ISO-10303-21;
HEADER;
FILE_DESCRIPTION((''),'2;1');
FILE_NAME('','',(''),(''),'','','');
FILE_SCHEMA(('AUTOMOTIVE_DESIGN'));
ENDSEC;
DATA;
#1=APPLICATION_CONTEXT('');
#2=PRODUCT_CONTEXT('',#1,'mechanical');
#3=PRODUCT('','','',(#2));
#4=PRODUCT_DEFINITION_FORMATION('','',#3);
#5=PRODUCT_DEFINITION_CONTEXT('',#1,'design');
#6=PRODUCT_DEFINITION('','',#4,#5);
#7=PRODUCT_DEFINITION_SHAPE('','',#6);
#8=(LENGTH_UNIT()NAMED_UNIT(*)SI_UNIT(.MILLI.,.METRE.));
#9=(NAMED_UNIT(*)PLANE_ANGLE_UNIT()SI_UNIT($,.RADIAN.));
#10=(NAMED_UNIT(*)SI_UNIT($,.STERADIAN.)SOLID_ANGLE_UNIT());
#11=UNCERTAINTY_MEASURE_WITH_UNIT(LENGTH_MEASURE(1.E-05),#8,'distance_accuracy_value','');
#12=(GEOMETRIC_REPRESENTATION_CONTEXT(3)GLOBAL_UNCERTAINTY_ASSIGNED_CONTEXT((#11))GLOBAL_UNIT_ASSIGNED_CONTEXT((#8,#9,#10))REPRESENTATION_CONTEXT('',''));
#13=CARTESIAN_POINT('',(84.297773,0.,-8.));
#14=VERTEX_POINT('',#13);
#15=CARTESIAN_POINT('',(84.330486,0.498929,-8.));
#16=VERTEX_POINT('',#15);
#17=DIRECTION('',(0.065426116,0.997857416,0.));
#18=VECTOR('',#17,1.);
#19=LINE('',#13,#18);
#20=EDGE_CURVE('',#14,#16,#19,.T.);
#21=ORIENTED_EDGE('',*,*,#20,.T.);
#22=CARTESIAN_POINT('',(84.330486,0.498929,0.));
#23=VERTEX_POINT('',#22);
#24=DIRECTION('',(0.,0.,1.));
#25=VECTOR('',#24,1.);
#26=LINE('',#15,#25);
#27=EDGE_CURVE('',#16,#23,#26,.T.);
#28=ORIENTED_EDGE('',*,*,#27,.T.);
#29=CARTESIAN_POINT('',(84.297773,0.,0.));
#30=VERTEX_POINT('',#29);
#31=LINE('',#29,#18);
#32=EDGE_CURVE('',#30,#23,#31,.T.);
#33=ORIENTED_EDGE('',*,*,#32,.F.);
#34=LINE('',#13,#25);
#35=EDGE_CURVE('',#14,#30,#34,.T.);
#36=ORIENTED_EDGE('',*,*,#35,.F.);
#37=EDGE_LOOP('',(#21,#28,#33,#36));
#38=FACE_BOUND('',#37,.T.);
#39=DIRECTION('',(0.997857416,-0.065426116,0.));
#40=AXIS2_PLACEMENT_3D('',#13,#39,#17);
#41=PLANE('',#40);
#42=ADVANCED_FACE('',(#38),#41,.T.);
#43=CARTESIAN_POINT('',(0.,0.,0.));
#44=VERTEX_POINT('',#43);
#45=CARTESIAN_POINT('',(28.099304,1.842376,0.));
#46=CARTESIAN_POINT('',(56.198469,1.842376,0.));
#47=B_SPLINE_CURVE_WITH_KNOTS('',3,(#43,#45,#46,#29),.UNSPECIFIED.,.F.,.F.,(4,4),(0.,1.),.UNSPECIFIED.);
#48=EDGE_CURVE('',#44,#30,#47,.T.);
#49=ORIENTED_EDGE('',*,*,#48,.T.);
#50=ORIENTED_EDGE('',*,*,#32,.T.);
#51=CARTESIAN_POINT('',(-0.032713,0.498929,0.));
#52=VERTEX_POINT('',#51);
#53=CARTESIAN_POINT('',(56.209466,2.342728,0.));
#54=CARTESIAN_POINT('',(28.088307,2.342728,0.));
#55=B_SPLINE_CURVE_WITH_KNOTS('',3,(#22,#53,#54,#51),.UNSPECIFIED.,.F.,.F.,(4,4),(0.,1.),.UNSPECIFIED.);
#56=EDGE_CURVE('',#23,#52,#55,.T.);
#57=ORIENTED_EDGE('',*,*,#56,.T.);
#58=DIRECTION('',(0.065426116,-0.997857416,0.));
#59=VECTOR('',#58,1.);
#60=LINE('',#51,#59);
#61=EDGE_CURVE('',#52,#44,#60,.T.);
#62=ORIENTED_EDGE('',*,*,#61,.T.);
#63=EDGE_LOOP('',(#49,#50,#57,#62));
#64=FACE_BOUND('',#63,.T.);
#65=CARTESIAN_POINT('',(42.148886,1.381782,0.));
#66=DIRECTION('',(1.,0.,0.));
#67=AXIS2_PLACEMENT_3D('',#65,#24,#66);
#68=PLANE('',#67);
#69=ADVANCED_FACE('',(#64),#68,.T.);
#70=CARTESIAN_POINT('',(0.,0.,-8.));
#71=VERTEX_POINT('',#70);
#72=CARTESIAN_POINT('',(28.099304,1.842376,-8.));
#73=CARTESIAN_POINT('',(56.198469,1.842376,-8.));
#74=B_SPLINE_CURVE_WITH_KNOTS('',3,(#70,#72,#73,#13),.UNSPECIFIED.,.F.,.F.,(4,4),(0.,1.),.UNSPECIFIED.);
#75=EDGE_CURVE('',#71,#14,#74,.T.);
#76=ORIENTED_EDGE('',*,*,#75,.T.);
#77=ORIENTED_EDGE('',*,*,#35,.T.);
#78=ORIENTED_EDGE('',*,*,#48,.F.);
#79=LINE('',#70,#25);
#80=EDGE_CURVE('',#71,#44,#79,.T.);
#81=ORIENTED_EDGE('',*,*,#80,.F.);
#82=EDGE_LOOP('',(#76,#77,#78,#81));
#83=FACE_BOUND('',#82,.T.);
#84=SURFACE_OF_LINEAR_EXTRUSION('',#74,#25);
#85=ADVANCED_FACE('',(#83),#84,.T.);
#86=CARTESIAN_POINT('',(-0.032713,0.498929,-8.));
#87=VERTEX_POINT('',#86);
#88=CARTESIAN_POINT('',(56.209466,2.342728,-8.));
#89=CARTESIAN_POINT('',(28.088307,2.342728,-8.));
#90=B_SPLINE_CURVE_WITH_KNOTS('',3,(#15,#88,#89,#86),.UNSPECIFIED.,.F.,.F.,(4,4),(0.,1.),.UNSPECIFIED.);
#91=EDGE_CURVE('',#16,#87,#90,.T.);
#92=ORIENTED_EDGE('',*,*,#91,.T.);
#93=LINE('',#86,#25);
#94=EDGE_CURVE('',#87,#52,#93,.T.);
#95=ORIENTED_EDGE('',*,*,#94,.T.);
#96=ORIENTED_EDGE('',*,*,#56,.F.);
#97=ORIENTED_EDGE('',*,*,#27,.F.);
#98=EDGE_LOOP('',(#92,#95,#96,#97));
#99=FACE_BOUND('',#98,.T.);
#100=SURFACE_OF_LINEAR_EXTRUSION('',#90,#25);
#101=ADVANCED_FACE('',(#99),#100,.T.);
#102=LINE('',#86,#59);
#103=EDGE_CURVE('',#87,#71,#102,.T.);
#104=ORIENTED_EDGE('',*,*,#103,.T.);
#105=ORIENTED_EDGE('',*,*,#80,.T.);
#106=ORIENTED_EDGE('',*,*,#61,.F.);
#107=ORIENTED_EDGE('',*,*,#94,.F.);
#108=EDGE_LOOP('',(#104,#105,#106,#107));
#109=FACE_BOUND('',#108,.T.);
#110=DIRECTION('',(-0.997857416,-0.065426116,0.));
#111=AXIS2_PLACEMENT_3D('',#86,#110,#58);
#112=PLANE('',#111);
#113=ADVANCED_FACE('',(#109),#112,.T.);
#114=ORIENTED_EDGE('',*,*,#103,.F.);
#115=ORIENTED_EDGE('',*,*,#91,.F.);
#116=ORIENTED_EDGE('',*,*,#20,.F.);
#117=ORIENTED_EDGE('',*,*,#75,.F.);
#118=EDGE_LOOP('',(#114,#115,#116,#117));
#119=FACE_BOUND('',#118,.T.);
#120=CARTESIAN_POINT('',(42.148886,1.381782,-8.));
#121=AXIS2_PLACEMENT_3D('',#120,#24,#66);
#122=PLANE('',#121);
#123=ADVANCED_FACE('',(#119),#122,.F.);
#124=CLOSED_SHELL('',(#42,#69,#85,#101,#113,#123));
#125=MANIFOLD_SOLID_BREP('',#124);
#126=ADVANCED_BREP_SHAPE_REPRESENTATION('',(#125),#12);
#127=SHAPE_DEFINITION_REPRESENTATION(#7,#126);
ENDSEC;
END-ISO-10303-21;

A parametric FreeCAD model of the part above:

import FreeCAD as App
import Part
import Sketcher

doc = App.newDocument("Part")
body = doc.addObject("PartDesign::Body", "Body")

# Sketch on XY plane
sketch1 = body.newObject("Sketcher::SketchObject", "Sketch")
sketch1.AttachmentSupport = (doc.getObject("XY_Plane"), [""])
sketch1.MapMode = "FlatFace"
sketch1.addGeometry([
    Part.LineSegment(App.Vector(84.297773, 0, 0), App.Vector(84.330486, 0.498929, 0)),
    Part.BSplineCurve([App.Vector(84.330486, 0.498929, 0), App.Vector(56.209466, 2.342728, 0), App.Vector(28.088307, 2.342728, 0), App.Vector(-0.032713, 0.498929, 0)], [4, 4], [0, 1], False, 3, [1, 1, 1, 1], False),
    Part.LineSegment(App.Vector(-0.032713, 0.498929, 0), App.Vector(0, 0, 0)),
    Part.BSplineCurve([App.Vector(0, 0, 0), App.Vector(28.099304, 1.842376, 0), App.Vector(56.198469, 1.842376, 0), App.Vector(84.297773, 0, 0)], [4, 4], [0, 1], False, 3, [1, 1, 1, 1], False),
], False)
sketch1.addConstraint([
    Sketcher.Constraint("Block", 1),
    Sketcher.Constraint("Block", 3),
    Sketcher.Constraint("Coincident", 0, 2, 1, 1),
    Sketcher.Constraint("Coincident", 1, 2, 2, 1),
    Sketcher.Constraint("Coincident", 2, 2, 3, 1),
    Sketcher.Constraint("Coincident", 3, 2, 0, 1),
])
pad1 = body.newObject("PartDesign::Pad", "Pad")
pad1.Profile = sketch1
pad1.Length = 8
pad1.Reversed = True

doc.recompute()
